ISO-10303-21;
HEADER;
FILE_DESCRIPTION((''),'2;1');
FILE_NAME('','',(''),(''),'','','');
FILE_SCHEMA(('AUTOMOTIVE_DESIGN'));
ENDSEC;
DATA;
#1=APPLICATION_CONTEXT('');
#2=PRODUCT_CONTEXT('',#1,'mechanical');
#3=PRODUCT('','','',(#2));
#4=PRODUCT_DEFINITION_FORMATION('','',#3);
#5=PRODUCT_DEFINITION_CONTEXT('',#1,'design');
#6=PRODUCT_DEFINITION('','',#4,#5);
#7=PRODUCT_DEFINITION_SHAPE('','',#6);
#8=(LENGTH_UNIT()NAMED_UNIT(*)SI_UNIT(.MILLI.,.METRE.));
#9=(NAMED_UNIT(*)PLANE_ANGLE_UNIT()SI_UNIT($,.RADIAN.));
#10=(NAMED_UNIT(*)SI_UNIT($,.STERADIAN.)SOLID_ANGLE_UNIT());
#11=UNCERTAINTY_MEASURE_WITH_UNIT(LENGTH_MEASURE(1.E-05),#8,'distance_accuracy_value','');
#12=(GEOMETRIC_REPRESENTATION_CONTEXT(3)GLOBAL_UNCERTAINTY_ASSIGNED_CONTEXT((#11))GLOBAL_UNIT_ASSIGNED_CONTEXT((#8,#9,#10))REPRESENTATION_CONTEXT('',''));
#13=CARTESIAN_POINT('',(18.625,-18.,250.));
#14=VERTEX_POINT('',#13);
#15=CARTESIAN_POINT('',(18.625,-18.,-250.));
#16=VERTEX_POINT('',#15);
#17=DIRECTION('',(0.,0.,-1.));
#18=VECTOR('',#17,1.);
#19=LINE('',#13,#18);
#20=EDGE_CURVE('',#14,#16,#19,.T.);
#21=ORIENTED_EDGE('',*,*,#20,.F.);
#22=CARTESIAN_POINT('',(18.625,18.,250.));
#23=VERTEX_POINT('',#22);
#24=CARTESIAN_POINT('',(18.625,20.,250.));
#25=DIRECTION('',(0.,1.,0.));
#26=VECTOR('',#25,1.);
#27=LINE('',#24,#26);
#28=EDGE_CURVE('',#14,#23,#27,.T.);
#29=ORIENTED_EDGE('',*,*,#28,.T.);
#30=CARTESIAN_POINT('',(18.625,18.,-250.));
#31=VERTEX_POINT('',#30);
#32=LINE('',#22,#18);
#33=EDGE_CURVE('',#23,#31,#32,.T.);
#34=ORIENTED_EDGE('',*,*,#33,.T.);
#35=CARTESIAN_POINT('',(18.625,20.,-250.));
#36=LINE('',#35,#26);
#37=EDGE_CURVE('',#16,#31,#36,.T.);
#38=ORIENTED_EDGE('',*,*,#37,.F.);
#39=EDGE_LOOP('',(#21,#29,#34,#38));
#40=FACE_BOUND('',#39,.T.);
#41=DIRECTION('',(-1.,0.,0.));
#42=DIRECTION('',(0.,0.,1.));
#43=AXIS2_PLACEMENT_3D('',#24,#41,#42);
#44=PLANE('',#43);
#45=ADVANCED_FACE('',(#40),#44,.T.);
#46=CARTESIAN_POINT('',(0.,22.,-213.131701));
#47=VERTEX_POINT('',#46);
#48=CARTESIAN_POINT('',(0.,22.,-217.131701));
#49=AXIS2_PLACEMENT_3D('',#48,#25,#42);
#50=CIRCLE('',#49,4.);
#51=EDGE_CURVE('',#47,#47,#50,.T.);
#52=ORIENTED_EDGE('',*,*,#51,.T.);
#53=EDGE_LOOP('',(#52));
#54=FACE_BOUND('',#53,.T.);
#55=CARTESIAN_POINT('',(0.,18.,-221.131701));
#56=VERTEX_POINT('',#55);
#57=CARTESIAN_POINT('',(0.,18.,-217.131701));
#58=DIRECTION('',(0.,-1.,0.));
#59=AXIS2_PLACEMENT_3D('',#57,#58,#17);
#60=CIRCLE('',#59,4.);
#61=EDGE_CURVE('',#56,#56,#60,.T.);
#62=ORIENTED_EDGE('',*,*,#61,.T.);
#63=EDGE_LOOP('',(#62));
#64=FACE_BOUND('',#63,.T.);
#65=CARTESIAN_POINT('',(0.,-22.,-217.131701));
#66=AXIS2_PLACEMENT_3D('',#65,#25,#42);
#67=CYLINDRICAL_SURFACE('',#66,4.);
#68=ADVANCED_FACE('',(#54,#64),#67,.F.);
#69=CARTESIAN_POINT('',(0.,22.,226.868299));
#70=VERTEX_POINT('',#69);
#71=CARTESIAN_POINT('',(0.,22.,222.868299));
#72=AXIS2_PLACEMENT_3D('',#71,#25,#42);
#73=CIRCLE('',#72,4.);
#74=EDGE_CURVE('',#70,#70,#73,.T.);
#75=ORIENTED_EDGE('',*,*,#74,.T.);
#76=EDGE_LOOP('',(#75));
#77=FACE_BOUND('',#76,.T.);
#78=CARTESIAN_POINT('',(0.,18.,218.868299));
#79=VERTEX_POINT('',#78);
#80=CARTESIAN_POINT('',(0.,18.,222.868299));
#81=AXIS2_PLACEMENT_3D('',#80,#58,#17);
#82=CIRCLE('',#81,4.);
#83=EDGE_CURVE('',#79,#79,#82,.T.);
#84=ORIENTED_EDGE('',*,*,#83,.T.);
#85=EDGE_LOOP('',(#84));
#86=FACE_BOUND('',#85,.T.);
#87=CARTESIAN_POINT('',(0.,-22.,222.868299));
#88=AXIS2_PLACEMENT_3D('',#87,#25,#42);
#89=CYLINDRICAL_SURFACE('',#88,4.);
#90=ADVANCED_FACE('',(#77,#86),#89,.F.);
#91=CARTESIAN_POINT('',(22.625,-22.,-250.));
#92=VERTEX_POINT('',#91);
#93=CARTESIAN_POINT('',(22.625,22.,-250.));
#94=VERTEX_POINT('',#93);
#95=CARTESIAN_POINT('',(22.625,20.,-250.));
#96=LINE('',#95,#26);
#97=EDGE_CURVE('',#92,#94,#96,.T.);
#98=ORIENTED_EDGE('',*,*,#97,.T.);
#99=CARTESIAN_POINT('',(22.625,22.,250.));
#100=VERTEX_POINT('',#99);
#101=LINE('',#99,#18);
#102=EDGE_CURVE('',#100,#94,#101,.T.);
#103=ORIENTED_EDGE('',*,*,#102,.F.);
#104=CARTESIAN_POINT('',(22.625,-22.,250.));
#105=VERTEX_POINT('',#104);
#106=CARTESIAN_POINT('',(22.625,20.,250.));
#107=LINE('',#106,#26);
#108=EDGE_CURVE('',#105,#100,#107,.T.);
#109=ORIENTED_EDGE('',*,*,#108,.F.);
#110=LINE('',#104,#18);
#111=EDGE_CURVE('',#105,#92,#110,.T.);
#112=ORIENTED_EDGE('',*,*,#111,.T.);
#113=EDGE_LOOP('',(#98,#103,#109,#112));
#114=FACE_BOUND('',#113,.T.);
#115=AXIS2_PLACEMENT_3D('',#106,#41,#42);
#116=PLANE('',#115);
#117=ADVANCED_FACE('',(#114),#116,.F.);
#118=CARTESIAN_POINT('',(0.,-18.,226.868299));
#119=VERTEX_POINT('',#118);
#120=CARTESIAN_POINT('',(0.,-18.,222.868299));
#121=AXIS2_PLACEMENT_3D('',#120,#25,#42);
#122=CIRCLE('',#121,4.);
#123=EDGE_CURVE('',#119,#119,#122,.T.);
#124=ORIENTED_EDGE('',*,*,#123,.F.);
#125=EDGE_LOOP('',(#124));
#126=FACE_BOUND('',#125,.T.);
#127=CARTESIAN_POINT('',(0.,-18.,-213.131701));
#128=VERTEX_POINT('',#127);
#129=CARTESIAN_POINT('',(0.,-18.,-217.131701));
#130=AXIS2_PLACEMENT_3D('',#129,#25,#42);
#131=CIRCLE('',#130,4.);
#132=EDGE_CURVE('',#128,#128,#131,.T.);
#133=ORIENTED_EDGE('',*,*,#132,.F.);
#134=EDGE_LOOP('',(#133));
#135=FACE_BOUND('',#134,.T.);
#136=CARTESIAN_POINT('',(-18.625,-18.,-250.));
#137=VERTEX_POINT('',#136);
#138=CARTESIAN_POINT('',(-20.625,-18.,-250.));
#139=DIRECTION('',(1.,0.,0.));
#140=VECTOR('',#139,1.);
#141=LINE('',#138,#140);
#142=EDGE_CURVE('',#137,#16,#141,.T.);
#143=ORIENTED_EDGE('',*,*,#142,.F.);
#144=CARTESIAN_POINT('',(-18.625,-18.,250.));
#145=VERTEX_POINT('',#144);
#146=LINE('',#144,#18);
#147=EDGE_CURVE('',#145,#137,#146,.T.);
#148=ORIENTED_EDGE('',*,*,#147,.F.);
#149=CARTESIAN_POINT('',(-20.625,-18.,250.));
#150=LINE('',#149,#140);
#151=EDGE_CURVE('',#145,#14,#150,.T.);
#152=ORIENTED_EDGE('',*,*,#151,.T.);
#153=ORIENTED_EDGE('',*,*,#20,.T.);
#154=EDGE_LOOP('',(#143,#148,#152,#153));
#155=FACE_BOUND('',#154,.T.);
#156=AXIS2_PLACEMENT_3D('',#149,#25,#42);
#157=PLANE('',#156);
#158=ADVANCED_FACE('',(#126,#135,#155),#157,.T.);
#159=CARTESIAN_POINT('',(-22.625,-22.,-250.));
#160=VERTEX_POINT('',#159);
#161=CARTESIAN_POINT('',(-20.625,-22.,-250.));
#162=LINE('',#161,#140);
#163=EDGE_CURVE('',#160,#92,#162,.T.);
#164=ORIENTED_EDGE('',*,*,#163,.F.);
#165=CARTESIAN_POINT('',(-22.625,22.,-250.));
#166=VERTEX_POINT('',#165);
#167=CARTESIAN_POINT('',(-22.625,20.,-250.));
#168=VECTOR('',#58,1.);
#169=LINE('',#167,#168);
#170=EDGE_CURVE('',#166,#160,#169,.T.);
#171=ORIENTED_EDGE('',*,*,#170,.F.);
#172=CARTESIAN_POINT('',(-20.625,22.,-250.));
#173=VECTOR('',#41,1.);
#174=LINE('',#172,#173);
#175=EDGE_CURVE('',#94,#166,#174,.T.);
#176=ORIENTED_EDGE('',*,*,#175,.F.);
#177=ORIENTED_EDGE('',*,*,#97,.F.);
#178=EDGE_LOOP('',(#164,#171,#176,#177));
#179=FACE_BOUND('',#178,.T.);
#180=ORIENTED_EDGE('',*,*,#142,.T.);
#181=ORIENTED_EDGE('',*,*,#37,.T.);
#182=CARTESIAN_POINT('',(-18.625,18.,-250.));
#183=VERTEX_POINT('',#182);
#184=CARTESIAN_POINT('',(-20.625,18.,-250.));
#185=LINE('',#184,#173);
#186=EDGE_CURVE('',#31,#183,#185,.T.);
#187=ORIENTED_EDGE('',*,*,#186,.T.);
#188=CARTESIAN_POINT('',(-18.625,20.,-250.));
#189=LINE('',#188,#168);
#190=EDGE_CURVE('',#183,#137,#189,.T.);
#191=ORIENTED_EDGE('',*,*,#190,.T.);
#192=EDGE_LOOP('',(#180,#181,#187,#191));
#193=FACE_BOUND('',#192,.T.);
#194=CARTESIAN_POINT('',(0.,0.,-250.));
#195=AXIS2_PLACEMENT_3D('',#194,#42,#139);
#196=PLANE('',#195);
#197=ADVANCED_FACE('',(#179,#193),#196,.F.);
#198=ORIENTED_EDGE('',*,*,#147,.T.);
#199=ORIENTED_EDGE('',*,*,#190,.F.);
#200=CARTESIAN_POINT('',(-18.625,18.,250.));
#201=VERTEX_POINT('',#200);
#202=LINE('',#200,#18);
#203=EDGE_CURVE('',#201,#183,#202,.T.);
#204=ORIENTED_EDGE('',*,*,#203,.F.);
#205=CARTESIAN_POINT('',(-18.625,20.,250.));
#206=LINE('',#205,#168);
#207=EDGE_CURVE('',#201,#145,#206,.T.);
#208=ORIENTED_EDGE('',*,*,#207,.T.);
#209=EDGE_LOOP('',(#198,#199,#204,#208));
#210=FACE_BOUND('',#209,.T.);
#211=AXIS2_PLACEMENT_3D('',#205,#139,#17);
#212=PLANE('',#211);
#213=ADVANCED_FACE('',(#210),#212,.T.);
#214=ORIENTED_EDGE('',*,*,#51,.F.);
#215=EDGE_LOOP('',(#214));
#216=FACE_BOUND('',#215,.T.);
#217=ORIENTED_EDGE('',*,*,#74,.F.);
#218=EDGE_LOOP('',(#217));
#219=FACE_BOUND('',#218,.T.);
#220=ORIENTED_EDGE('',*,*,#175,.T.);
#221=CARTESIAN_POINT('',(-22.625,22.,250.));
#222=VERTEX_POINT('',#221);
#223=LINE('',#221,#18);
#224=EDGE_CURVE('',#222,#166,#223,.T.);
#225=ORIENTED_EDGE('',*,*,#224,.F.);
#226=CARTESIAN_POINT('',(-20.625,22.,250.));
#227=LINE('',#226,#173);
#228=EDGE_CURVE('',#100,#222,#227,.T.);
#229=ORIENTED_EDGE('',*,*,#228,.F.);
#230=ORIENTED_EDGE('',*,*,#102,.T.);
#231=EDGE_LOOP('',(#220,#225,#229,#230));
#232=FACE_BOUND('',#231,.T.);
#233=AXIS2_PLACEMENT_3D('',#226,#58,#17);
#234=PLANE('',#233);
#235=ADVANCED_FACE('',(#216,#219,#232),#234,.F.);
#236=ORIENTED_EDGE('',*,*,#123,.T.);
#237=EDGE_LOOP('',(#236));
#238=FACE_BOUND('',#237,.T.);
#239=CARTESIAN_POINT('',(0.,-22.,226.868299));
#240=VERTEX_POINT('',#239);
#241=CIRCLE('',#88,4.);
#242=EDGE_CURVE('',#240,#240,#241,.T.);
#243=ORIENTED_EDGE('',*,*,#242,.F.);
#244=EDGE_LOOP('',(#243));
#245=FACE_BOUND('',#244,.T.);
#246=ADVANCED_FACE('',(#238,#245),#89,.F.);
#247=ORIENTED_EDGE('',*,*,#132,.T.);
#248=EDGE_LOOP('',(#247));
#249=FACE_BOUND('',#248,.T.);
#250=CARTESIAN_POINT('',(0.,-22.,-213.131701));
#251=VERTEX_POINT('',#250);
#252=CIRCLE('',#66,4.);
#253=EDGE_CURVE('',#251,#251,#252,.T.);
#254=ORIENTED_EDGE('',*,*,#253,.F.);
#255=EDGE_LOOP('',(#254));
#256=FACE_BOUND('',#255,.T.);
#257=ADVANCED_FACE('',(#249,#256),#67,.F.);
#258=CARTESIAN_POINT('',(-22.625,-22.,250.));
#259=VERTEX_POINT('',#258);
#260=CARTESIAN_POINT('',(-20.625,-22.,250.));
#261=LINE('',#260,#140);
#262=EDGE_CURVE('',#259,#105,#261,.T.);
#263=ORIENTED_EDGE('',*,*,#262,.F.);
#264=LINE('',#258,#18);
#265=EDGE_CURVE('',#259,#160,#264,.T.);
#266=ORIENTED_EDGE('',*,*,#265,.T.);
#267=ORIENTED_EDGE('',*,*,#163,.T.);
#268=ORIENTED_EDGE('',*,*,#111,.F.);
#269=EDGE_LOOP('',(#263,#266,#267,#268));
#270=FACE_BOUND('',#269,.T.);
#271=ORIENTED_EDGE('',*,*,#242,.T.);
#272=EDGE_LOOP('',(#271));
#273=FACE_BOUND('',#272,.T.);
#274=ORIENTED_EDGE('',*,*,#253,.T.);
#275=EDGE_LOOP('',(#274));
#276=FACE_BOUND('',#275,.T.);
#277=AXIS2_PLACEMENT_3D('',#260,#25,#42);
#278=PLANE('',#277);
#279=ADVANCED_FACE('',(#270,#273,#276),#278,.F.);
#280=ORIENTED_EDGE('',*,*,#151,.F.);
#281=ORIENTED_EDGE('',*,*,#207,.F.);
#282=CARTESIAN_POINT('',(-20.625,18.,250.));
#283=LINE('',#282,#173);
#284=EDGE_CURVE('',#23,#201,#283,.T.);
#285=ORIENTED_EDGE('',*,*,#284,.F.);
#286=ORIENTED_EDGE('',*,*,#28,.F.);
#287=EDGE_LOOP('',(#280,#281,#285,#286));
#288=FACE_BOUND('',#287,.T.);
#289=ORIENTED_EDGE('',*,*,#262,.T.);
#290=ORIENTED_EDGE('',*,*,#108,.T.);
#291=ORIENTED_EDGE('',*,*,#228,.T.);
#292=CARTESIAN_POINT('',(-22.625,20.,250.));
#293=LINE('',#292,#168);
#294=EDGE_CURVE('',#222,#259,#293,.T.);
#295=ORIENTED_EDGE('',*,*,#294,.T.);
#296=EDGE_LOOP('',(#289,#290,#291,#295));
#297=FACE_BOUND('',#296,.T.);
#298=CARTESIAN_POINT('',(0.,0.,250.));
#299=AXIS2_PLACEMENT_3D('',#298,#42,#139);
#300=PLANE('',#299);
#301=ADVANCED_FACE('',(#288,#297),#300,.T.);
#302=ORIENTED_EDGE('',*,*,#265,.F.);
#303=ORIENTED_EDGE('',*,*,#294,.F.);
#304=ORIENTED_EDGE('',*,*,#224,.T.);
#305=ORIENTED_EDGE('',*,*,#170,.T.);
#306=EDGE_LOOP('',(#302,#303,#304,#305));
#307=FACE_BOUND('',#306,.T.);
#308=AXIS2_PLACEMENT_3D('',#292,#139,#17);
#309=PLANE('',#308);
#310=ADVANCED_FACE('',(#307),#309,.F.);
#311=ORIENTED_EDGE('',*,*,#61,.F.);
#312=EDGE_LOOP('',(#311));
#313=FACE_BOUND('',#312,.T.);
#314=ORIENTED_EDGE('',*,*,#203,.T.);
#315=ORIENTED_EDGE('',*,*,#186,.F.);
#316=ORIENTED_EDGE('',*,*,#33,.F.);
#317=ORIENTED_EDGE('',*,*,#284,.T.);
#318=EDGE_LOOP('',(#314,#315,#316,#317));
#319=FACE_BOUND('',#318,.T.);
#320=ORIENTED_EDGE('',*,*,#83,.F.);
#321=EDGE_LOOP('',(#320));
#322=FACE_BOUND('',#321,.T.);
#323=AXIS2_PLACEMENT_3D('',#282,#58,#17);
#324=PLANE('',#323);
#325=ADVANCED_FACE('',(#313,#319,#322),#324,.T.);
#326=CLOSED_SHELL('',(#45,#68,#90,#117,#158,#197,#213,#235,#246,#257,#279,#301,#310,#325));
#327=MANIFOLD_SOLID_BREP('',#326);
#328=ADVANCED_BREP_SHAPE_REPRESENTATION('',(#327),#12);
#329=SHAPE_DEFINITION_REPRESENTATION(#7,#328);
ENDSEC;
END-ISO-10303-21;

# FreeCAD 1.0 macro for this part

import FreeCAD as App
import Part
import Sketcher

V = App.Vector

doc = App.newDocument("Part")
body = doc.addObject("PartDesign::Body", "Body")

# Sketch on XY plane
sketch1 = body.newObject("Sketcher::SketchObject", "Sketch")
sketch1.AttachmentSupport = (doc.getObject("XY_Plane"), [""])
sketch1.MapMode = "FlatFace"
sketch1.addGeometry([
    Part.LineSegment(V(-23, 22, 0), V(-23, -22, 0)),  # 0
    Part.LineSegment(V(-23, -22, 0), V(23, -22, 0)),  # 1
    Part.LineSegment(V(23, -22, 0), V(23, 22, 0)),  # 2
    Part.LineSegment(V(23, 22, 0), V(-23, 22, 0)),  # 3
    Part.LineSegment(V(19, -18, 0), V(-19, -18, 0)),  # 4
    Part.LineSegment(V(-19, -18, 0), V(-19, 18, 0)),  # 5
    Part.LineSegment(V(-19, 18, 0), V(19, 18, 0)),  # 6
    Part.LineSegment(V(19, 18, 0), V(19, -18, 0)),  # 7
], False)
sketch1.addConstraint([
    Sketcher.Constraint("Coincident", 0, 2, 1, 1),
    Sketcher.Constraint("Coincident", 1, 2, 2, 1),
    Sketcher.Constraint("Coincident", 2, 2, 3, 1),
    Sketcher.Constraint("Coincident", 3, 2, 0, 1),
    Sketcher.Constraint("Coincident", 4, 2, 5, 1),
    Sketcher.Constraint("Coincident", 5, 2, 6, 1),
    Sketcher.Constraint("Coincident", 6, 2, 7, 1),
    Sketcher.Constraint("Coincident", 7, 2, 4, 1),
    Sketcher.Constraint("Vertical", 0),
    Sketcher.Constraint("Horizontal", 1),
    Sketcher.Constraint("Vertical", 2),
    Sketcher.Constraint("Horizontal", 3),
    Sketcher.Constraint("Horizontal", 4),
    Sketcher.Constraint("Vertical", 5),
    Sketcher.Constraint("Horizontal", 6),
    Sketcher.Constraint("Vertical", 7),
    Sketcher.Constraint("Symmetric", 0, 2, 2, 2, -1, 1),
    Sketcher.Constraint("Symmetric", 4, 2, 6, 2, -1, 1),
    Sketcher.Constraint("DistanceY", 0, 2, 0, 1, 44.0),
    Sketcher.Constraint("DistanceY", 5, 1, 5, 2, 36.0),
    Sketcher.Constraint("DistanceX", 0, 2, 4, 2, 4.0),
    Sketcher.Constraint("DistanceX", 1, 1, 1, 2, 45.25),
])
pad1 = body.newObject("PartDesign::Pad", "Pad")
pad1.Profile = sketch1
pad1.Length = 500
pad1.Midplane = True

# Sketch on XZ plane
sketch2 = body.newObject("Sketcher::SketchObject", "Sketch001")
sketch2.AttachmentSupport = (doc.getObject("XZ_Plane"), [""])
sketch2.MapMode = "FlatFace"
sketch2.AttachmentOffset = App.Placement(V(0, 0, -22), App.Rotation())
sketch2.addGeometry([
    Part.Circle(V(0, -217.1, 0), V(0, 0, 1), 4),
    Part.Circle(V(0, 222.9, 0), V(0, 0, 1), 4),
], False)
sketch2.addConstraint([
    Sketcher.Constraint("Equal", 0, 1),
    Sketcher.Constraint("PointOnObject", 0, 3, -2),
    Sketcher.Constraint("PointOnObject", 1, 3, -2),
    Sketcher.Constraint("Diameter", 0, 8.0),
    Sketcher.Constraint("DistanceY", 0, 3, 1, 3, 440.0),
    Sketcher.Constraint("DistanceY", 0, 3, -1, 1, 217.131701),
])
pocket1 = body.newObject("PartDesign::Pocket", "Pocket")
pocket1.Profile = sketch2
pocket1.Type = "ThroughAll"
pocket1.Reversed = True

doc.recompute()
